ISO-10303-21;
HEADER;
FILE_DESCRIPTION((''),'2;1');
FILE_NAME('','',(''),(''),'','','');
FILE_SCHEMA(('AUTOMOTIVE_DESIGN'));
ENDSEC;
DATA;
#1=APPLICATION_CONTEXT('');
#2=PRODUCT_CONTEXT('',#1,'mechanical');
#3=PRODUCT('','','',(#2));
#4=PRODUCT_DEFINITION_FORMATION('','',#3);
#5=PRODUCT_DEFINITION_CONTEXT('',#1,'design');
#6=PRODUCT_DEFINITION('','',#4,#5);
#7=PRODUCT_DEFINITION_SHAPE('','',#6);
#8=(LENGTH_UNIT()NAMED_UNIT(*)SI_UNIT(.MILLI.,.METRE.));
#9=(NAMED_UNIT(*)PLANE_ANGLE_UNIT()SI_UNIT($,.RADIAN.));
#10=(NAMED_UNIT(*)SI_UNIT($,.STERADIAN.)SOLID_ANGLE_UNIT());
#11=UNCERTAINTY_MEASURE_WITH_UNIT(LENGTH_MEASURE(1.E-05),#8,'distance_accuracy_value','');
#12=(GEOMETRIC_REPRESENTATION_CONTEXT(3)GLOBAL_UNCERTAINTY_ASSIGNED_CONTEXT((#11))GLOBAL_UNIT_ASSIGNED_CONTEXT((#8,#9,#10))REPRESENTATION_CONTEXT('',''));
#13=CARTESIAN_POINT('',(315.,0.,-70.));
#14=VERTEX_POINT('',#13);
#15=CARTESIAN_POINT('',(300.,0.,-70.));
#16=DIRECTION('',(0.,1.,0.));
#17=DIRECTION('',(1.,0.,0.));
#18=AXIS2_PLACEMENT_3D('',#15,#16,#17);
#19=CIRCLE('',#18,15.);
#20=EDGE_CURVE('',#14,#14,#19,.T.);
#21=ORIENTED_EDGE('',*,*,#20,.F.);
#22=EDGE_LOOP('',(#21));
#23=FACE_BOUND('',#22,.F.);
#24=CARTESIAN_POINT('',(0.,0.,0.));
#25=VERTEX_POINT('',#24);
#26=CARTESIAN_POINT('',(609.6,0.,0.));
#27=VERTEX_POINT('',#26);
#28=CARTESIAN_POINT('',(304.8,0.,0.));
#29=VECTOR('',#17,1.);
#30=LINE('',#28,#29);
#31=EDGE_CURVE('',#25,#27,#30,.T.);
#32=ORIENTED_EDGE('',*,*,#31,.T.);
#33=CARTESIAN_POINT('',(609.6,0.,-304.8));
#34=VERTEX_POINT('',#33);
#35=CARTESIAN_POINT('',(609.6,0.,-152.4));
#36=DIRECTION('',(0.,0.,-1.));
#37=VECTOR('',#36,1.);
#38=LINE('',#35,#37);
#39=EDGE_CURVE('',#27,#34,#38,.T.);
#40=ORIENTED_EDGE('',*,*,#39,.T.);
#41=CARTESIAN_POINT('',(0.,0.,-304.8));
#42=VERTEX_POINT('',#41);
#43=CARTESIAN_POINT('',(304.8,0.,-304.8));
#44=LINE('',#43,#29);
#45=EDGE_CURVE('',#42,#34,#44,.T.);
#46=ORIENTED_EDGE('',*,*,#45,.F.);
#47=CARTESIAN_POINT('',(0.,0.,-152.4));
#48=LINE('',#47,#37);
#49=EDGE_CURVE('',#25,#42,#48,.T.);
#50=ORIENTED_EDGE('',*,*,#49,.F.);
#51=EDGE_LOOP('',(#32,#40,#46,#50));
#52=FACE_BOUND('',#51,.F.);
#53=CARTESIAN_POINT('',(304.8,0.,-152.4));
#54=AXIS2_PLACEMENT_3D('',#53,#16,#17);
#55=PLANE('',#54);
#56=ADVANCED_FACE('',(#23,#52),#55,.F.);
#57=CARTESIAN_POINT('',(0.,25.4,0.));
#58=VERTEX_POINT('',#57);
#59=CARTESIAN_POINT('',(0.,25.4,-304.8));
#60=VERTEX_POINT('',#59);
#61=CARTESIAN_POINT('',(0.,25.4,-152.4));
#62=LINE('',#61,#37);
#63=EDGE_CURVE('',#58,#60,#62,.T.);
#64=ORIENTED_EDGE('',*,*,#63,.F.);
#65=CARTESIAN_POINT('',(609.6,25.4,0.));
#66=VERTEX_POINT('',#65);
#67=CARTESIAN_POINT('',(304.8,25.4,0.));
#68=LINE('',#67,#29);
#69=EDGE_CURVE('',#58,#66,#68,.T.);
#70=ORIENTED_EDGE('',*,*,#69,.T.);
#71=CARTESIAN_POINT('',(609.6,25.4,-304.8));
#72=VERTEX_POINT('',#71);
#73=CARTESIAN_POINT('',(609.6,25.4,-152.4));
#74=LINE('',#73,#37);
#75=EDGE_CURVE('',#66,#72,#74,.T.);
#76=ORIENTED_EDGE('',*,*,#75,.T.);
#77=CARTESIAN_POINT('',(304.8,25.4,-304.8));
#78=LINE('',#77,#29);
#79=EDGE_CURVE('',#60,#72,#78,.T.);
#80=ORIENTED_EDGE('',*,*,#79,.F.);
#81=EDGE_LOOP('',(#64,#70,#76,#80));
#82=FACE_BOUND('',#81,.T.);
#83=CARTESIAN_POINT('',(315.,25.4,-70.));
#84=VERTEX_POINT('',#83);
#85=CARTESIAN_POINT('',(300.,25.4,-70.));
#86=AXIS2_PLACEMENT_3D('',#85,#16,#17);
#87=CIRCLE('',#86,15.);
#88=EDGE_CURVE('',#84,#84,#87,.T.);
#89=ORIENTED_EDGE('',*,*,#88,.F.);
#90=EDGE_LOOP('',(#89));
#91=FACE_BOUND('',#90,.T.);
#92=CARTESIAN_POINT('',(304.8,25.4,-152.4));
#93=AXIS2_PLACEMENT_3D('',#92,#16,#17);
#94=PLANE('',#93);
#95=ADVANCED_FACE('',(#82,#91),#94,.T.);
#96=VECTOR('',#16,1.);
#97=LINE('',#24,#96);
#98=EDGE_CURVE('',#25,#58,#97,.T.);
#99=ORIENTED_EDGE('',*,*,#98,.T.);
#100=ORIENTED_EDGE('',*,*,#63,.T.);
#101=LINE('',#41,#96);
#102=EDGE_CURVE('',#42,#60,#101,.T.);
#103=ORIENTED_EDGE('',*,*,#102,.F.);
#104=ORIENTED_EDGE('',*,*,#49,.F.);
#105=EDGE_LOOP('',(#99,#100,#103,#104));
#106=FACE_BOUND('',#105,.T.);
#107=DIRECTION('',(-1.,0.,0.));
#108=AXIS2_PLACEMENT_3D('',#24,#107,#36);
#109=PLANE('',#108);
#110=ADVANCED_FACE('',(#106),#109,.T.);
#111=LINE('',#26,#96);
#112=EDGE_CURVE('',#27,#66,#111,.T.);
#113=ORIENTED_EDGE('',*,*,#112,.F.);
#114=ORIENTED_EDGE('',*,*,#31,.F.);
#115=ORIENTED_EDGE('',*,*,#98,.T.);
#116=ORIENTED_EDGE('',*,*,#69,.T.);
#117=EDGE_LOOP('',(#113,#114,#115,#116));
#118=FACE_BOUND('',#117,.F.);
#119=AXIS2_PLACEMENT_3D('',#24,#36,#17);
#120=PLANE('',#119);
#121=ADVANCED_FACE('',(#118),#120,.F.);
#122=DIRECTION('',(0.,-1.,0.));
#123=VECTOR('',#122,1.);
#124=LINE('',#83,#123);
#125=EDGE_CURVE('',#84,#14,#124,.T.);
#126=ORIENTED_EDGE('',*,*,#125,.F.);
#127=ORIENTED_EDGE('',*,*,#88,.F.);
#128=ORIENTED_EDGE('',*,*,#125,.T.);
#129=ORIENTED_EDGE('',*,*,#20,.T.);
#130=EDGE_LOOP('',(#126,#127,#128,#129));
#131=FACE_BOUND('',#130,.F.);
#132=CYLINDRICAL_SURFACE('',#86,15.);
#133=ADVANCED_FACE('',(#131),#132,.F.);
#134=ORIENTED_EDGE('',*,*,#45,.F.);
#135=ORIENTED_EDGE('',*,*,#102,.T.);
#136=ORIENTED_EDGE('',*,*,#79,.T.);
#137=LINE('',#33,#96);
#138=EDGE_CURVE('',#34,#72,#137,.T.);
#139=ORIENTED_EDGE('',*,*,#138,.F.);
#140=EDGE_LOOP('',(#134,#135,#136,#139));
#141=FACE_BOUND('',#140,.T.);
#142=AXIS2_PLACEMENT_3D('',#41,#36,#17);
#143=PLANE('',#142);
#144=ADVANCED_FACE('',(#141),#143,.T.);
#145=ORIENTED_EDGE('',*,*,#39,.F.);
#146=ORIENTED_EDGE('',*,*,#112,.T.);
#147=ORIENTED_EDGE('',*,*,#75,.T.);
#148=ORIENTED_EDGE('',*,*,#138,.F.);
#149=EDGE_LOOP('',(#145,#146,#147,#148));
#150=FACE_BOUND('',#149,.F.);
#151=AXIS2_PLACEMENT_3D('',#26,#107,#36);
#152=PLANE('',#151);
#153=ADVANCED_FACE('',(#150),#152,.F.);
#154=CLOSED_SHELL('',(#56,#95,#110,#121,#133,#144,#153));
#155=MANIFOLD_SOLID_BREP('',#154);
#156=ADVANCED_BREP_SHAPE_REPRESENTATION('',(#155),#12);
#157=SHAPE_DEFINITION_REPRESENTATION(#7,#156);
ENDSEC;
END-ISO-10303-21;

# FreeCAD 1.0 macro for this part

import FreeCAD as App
import Part
import Sketcher
from FreeCAD import Vector
Q = App.Units.Quantity

doc = App.newDocument("Part")
params = doc.addObject("Spreadsheet::Sheet", "Params")
for row, (alias, value) in enumerate([
    ("sketch1_width", "24 in"),
    ("sketch1_height", "12 in"),
    ("pad1_length", "1 in"),
    ("pocket1_length", "1 in"),
], start=1):
    params.set(f"A{row}", alias)
    params.set(f"B{row}", "=" + value)
    params.setAlias(f"B{row}", alias)

body = doc.addObject("PartDesign::Body", "Body")

# Sketch on XZ plane
sketch1 = body.newObject("Sketcher::SketchObject", "Sketch")
sketch1.AttachmentSupport = (doc.getObject("XZ_Plane"), [""])
sketch1.MapMode = "FlatFace"
sketch1.addGeometry(Part.LineSegment(Vector(0, -305, 0), Vector(0, 0, 0)), False)
sketch1.addGeometry(Part.LineSegment(Vector(0, 0, 0), Vector(610, 0, 0)), False)
sketch1.addGeometry(Part.LineSegment(Vector(610, 0, 0), Vector(610, -305, 0)), False)
sketch1.addGeometry(Part.LineSegment(Vector(610, -305, 0), Vector(0, -305, 0)), False)
sketch1.addConstraint(Sketcher.Constraint("Coincident", 0, 2, 1, 1))
sketch1.addConstraint(Sketcher.Constraint("Coincident", 1, 2, 2, 1))
sketch1.addConstraint(Sketcher.Constraint("Coincident", 2, 2, 3, 1))
sketch1.addConstraint(Sketcher.Constraint("Coincident", 3, 2, 0, 1))
sketch1.addConstraint(Sketcher.Constraint("Vertical", 0))
sketch1.addConstraint(Sketcher.Constraint("Horizontal", 1))
sketch1.addConstraint(Sketcher.Constraint("Vertical", 2))
sketch1.addConstraint(Sketcher.Constraint("Horizontal", 3))
sketch1.addConstraint(Sketcher.Constraint("Coincident", 0, 2, -1, 1))
sketch1.addConstraint(Sketcher.Constraint("DistanceX", 1, 1, 1, 2, Q("24 in")))
sketch1.addConstraint(Sketcher.Constraint("DistanceY", 0, 1, 0, 2, Q("12 in")))
sketch1.setExpression("Constraints[9]", "Params.sketch1_width")
sketch1.setExpression("Constraints[10]", "Params.sketch1_height")
pad1 = body.newObject("PartDesign::Pad", "Pad")
pad1.Profile = sketch1
pad1.setExpression("Length", "Params.pad1_length")
pad1.Reversed = True

# Sketch on XZ plane
sketch2 = body.newObject("Sketcher::SketchObject", "Sketch001")
sketch2.AttachmentSupport = (doc.getObject("XZ_Plane"), [""])
sketch2.MapMode = "FlatFace"
sketch2.AttachmentOffset = App.Placement(Vector(0, 0, -1 * 25.4), App.Rotation())
sketch2.addGeometry(Part.Circle(Vector(300, -70, 0), Vector(0, 0, 1), 15), False)
sketch2.addConstraint(Sketcher.Constraint("Diameter", 0, Q("30 mm")))
sketch2.addConstraint(Sketcher.Constraint("DistanceX", -1, 1, 0, 3, Q("300 mm")))
sketch2.addConstraint(Sketcher.Constraint("DistanceY", 0, 3, -1, 1, Q("70 mm")))
pocket1 = body.newObject("PartDesign::Pocket", "Pocket")
pocket1.Profile = sketch2
pocket1.setExpression("Length", "Params.pocket1_length")
pocket1.Reversed = True

doc.recompute()
